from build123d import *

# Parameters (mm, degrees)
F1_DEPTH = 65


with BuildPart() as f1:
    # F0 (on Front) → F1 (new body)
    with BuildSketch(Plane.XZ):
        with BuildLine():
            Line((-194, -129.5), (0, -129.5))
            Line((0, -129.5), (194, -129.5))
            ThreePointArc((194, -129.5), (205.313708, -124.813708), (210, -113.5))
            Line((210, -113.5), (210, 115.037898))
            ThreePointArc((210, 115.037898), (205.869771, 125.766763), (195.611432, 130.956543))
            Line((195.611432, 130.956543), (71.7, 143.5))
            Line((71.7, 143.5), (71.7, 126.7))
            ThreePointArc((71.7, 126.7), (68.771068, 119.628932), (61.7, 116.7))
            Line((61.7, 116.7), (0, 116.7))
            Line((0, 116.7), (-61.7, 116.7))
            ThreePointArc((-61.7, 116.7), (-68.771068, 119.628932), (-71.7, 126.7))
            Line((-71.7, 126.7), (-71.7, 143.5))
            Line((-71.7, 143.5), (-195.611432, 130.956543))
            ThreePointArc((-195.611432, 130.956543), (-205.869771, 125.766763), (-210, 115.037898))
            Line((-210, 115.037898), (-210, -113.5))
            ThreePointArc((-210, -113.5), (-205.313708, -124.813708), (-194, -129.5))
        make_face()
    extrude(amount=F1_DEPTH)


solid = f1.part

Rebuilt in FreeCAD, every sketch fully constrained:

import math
import FreeCAD as App
import Part
import Sketcher

doc = App.newDocument("Part")
body = doc.addObject("PartDesign::Body", "Body")

# Sketch on XZ plane
sketch1 = body.newObject("Sketcher::SketchObject", "Sketch")
sketch1.AttachmentSupport = (doc.getObject("XZ_Plane"), [""])
sketch1.MapMode = "FlatFace"
sketch1.addGeometry(Part.LineSegment(App.Vector(-194, -130, 0), App.Vector(194, -130, 0)), False)
sketch1.addGeometry(Part.ArcOfCircle(Part.Circle(App.Vector(194, -113, 0), App.Vector(0, 0, 1), 16), math.radians(-90), math.radians(0)), False)
sketch1.addGeometry(Part.LineSegment(App.Vector(210, -114, 0), App.Vector(210, 115, 0)), False)
sketch1.addGeometry(Part.ArcOfCircle(Part.Circle(App.Vector(194, 115, 0), App.Vector(0, 0, 1), 16), math.radians(0), math.radians(84)), False)
sketch1.addGeometry(Part.LineSegment(App.Vector(196, 131, 0), App.Vector(72, 144, 0)), False)
sketch1.addGeometry(Part.LineSegment(App.Vector(72, 144, 0), App.Vector(72, 127, 0)), False)
sketch1.addGeometry(Part.ArcOfCircle(Part.Circle(App.Vector(62, 127, 0), App.Vector(0, 0, 1), 10), math.radians(-90), math.radians(0)), False)
sketch1.addGeometry(Part.LineSegment(App.Vector(62, 117, 0), App.Vector(-62, 117, 0)), False)
sketch1.addGeometry(Part.ArcOfCircle(Part.Circle(App.Vector(-62, 127, 0), App.Vector(0, 0, 1), 10), math.radians(180), math.radians(270)), False)
sketch1.addGeometry(Part.LineSegment(App.Vector(-72, 127, 0), App.Vector(-72, 144, 0)), False)
sketch1.addGeometry(Part.LineSegment(App.Vector(-72, 144, 0), App.Vector(-196, 131, 0)), False)
sketch1.addGeometry(Part.ArcOfCircle(Part.Circle(App.Vector(-194, 115, 0), App.Vector(0, 0, 1), 16), math.radians(96), math.radians(180)), False)
sketch1.addGeometry(Part.LineSegment(App.Vector(-210, 115, 0), App.Vector(-210, -114, 0)), False)
sketch1.addGeometry(Part.ArcOfCircle(Part.Circle(App.Vector(-194, -113, 0), App.Vector(0, 0, 1), 16), math.radians(-180), math.radians(-90)), False)
sketch1.addConstraint(Sketcher.Constraint("Tangent", 0, 2, 1, 1))
sketch1.addConstraint(Sketcher.Constraint("Tangent", 1, 2, 2, 1))
sketch1.addConstraint(Sketcher.Constraint("Tangent", 2, 2, 3, 1))
sketch1.addConstraint(Sketcher.Constraint("Tangent", 3, 2, 4, 1))
sketch1.addConstraint(Sketcher.Constraint("Coincident", 4, 2, 5, 1))
sketch1.addConstraint(Sketcher.Constraint("Tangent", 5, 2, 6, 2))
sketch1.addConstraint(Sketcher.Constraint("Tangent", 6, 1, 7, 1))
sketch1.addConstraint(Sketcher.Constraint("Tangent", 7, 2, 8, 2))
sketch1.addConstraint(Sketcher.Constraint("Tangent", 8, 1, 9, 1))
sketch1.addConstraint(Sketcher.Constraint("Coincident", 9, 2, 10, 1))
sketch1.addConstraint(Sketcher.Constraint("Tangent", 10, 2, 11, 1))
sketch1.addConstraint(Sketcher.Constraint("Tangent", 11, 2, 12, 1))
sketch1.addConstraint(Sketcher.Constraint("Tangent", 12, 2, 13, 1))
sketch1.addConstraint(Sketcher.Constraint("Tangent", 13, 2, 0, 1))
sketch1.addConstraint(Sketcher.Constraint("Horizontal", 0))
sketch1.addConstraint(Sketcher.Constraint("Vertical", 2))
sketch1.addConstraint(Sketcher.Constraint("Vertical", 5))
sketch1.addConstraint(Sketcher.Constraint("Horizontal", 7))
sketch1.addConstraint(Sketcher.Constraint("Vertical", 9))
sketch1.addConstraint(Sketcher.Constraint("Vertical", 12))
sketch1.addConstraint(Sketcher.Constraint("Equal", 6, 8))
sketch1.addConstraint(Sketcher.Constraint("Equal", 3, 11))
sketch1.addConstraint(Sketcher.Constraint("Equal", 1, 13))
sketch1.addConstraint(Sketcher.Constraint("Symmetric", 3, 3, 11, 3, -2))
sketch1.addConstraint(Sketcher.Constraint("Symmetric", 4, 2, 9, 2, -2))
sketch1.addConstraint(Sketcher.Constraint("Radius", 1, 16.000002))
sketch1.addConstraint(Sketcher.Constraint("Radius", 6, 9.999999))
sketch1.addConstraint(Sketcher.Constraint("DistanceX", 0, 1, 0, 2, 388.0))
sketch1.addConstraint(Sketcher.Constraint("DistanceX", 7, 2, 7, 1, 123.4))
sketch1.addConstraint(Sketcher.Constraint("DistanceY", 5, 2, 5, 1, 16.8))
sketch1.addConstraint(Sketcher.Constraint("DistanceX", 11, 3, 1, 3, 388.000001))
sketch1.addConstraint(Sketcher.Constraint("DistanceY", 1, 3, -1, 1, 113.499998))
sketch1.addConstraint(Sketcher.Constraint("DistanceY", -1, 1, 6, 3, 126.699999))
sketch1.addConstraint(Sketcher.Constraint("DistanceY", -1, 1, 3, 3, 115.037899))
pad1 = body.newObject("PartDesign::Pad", "Pad")
pad1.Profile = sketch1
pad1.Length = 65

doc.recompute()
